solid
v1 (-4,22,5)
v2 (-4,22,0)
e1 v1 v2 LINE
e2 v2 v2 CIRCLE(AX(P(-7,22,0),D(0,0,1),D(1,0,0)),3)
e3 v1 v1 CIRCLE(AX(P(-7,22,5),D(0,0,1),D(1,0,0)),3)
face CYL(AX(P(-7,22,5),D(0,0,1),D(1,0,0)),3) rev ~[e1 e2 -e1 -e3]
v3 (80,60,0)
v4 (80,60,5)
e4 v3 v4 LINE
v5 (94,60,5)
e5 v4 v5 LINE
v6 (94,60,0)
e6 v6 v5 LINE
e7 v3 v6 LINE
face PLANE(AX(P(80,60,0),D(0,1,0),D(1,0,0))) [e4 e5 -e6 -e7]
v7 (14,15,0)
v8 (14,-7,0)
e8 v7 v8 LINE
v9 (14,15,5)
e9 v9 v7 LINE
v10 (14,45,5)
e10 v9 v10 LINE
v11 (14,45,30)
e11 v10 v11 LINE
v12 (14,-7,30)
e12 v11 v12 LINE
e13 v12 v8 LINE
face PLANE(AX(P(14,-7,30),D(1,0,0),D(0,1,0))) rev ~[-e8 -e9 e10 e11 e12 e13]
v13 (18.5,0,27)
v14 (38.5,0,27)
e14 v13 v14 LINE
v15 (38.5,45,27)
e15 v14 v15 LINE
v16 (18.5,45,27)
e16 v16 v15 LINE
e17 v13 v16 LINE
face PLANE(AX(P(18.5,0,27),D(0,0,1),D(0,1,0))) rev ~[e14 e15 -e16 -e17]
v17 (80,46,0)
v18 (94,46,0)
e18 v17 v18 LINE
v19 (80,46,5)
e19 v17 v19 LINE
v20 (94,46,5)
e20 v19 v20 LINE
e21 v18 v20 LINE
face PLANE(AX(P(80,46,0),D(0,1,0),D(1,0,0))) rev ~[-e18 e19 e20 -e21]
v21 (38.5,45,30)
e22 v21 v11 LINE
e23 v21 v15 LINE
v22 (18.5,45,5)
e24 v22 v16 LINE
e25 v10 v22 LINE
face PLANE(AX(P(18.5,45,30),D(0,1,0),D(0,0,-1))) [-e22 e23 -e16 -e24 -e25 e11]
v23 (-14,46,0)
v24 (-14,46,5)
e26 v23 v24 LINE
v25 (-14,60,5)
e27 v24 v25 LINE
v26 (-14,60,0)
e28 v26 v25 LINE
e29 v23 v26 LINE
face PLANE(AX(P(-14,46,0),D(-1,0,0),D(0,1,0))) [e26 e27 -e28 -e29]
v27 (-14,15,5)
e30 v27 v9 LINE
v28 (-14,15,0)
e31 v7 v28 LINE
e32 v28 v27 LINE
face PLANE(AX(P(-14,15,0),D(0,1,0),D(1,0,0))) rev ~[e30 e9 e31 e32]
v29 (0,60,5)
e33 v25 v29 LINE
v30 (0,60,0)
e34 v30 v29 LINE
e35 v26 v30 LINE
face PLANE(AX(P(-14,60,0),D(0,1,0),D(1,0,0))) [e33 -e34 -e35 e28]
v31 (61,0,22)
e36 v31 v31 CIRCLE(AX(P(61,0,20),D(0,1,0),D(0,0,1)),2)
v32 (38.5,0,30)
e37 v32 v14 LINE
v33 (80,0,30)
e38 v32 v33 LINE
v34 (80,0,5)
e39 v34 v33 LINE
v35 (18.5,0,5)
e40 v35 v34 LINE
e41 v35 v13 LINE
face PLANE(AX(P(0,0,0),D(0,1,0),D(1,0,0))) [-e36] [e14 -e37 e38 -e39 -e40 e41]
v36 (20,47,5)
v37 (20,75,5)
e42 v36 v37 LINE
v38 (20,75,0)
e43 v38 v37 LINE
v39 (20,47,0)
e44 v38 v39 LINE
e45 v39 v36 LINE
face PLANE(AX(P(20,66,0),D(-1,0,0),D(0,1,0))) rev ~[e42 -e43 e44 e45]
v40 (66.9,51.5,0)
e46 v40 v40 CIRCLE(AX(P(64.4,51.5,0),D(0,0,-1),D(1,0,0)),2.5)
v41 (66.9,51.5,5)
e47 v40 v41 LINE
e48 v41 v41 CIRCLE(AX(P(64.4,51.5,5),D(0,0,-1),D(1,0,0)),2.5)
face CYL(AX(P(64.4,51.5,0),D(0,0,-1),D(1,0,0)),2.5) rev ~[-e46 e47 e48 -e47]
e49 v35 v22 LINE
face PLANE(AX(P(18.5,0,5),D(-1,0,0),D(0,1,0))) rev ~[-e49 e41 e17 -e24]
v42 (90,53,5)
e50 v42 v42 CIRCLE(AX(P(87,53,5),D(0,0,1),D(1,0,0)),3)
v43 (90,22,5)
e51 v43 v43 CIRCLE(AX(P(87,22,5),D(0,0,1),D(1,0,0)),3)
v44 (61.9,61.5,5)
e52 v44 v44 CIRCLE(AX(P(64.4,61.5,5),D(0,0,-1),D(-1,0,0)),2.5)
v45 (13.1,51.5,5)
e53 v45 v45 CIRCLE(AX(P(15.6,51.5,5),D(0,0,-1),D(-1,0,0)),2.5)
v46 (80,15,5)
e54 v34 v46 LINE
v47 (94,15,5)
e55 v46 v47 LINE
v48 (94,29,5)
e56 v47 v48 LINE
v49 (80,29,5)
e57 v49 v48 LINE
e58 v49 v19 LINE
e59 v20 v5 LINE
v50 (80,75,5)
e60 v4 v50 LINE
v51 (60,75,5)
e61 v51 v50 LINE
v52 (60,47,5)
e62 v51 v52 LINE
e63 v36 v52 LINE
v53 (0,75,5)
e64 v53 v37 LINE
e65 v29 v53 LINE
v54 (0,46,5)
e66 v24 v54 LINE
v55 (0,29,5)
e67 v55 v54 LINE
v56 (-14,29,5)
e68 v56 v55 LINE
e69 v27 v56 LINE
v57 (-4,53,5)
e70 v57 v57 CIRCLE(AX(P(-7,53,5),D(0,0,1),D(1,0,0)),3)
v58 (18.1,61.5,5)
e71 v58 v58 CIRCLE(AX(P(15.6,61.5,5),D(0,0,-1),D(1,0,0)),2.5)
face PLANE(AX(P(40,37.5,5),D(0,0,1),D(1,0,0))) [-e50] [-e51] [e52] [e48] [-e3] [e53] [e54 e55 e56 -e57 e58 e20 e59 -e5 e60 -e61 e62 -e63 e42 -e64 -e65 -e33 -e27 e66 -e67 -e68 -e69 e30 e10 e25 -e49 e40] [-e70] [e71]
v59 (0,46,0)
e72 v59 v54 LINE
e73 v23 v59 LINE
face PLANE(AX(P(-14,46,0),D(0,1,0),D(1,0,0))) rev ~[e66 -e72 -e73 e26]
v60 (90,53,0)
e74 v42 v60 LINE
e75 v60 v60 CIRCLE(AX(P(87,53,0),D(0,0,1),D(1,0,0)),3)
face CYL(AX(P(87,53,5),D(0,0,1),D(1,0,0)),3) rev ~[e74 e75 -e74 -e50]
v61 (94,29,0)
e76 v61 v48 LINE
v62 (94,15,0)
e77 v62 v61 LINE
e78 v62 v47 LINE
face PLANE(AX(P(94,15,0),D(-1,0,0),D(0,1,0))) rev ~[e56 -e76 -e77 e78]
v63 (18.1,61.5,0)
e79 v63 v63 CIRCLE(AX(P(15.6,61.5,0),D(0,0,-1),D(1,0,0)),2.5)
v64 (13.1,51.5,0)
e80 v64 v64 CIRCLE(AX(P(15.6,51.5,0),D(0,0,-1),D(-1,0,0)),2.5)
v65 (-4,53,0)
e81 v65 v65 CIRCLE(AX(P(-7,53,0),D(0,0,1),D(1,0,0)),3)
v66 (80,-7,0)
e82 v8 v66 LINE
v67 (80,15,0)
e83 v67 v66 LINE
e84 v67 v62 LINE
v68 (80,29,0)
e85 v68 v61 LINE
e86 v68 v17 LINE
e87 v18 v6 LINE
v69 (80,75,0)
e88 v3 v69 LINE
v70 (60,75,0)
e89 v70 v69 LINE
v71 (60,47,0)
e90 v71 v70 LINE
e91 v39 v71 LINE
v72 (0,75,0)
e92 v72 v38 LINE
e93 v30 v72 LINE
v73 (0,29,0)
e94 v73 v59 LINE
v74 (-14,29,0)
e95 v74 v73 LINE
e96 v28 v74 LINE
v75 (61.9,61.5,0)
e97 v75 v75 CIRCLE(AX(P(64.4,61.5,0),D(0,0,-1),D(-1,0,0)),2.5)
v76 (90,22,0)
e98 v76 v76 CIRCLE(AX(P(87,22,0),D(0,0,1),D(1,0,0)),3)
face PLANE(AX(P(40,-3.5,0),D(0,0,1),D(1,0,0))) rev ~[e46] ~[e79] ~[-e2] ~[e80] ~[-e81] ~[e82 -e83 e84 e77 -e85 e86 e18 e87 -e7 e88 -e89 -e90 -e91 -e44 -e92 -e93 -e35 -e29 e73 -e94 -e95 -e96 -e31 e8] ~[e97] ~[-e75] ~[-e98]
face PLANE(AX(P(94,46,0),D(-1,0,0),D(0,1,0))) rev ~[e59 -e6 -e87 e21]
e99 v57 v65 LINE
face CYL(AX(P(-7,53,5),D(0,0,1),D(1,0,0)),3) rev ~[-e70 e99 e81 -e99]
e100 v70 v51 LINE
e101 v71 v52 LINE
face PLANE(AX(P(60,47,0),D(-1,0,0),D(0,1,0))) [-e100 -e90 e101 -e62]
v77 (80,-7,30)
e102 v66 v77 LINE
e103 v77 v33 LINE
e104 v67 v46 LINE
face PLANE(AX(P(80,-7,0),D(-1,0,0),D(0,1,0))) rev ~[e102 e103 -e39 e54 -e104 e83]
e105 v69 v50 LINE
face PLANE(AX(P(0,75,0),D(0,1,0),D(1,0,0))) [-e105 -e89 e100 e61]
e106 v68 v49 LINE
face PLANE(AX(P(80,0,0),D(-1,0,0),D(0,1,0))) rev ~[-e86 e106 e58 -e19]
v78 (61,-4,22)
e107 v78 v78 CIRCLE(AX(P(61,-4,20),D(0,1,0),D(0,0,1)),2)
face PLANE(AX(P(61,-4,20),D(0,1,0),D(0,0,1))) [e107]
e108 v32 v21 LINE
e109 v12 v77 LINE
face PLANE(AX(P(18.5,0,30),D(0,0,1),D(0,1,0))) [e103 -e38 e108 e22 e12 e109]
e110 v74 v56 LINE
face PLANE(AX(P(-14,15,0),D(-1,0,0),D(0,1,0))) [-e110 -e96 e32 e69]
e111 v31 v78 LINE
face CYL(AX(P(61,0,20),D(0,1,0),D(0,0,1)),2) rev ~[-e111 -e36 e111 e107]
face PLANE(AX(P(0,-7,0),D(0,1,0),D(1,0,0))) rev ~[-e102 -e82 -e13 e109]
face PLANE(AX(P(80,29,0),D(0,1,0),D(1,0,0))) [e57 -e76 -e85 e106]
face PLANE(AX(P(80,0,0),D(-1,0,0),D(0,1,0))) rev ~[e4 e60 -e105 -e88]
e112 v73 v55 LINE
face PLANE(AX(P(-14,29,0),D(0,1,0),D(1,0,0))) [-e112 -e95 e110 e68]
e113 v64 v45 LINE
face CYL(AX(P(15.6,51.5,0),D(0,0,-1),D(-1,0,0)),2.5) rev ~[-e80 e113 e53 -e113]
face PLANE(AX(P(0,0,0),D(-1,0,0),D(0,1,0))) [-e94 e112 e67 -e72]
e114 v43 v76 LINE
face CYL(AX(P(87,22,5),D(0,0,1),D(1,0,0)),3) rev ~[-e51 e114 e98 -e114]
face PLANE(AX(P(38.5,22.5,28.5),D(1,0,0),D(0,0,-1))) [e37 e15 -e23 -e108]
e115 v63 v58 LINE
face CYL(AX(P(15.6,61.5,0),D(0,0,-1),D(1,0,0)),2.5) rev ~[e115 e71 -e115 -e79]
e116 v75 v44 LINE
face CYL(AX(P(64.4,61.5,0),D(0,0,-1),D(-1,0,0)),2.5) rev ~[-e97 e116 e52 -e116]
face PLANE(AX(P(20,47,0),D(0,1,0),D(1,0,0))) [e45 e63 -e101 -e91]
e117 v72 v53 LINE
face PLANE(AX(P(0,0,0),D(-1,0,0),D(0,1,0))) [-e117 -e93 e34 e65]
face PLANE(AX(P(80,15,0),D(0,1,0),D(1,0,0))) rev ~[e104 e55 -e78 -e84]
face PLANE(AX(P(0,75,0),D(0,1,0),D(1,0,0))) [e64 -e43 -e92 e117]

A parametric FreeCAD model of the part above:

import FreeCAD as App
import Part
import Sketcher

doc = App.newDocument("Part")
body = doc.addObject("PartDesign::Body", "Body")

sketch1 = body.newObject("Sketcher::SketchObject", "Sketch")
sketch1.AttachmentSupport = (doc.getObject("XY_Plane"), [""])
sketch1.MapMode = "FlatFace"
sketch1.addGeometry(Part.LineSegment(App.Vector(0, 15, 0), App.Vector(0, 0, 0)), False)
sketch1.addGeometry(Part.LineSegment(App.Vector(0, 0, 0), App.Vector(80, 0, 0)), False)
sketch1.addGeometry(Part.LineSegment(App.Vector(80, 0, 0), App.Vector(80, 15, 0)), False)
sketch1.addGeometry(Part.LineSegment(App.Vector(80, 15, 0), App.Vector(94, 15, 0)), False)
sketch1.addGeometry(Part.LineSegment(App.Vector(94, 15, 0), App.Vector(94, 29, 0)), False)
sketch1.addGeometry(Part.LineSegment(App.Vector(94, 29, 0), App.Vector(80, 29, 0)), False)
sketch1.addGeometry(Part.LineSegment(App.Vector(80, 29, 0), App.Vector(80, 46, 0)), False)
sketch1.addGeometry(Part.LineSegment(App.Vector(80, 46, 0), App.Vector(94, 46, 0)), False)
sketch1.addGeometry(Part.LineSegment(App.Vector(94, 46, 0), App.Vector(94, 60, 0)), False)
sketch1.addGeometry(Part.LineSegment(App.Vector(94, 60, 0), App.Vector(80, 60, 0)), False)
sketch1.addGeometry(Part.LineSegment(App.Vector(80, 60, 0), App.Vector(80, 75, 0)), False)
sketch1.addGeometry(Part.LineSegment(App.Vector(80, 75, 0), App.Vector(0, 75, 0)), False)
sketch1.addGeometry(Part.LineSegment(App.Vector(0, 75, 0), App.Vector(0, 60, 0)), False)
sketch1.addGeometry(Part.LineSegment(App.Vector(0, 60, 0), App.Vector(-14, 60, 0)), False)
sketch1.addGeometry(Part.LineSegment(App.Vector(-14, 60, 0), App.Vector(-14, 46, 0)), False)
sketch1.addGeometry(Part.LineSegment(App.Vector(-14, 46, 0), App.Vector(0, 46, 0)), False)
sketch1.addGeometry(Part.LineSegment(App.Vector(0, 46, 0), App.Vector(0, 29, 0)), False)
sketch1.addGeometry(Part.LineSegment(App.Vector(0, 29, 0), App.Vector(-14, 29, 0)), False)
sketch1.addGeometry(Part.LineSegment(App.Vector(-14, 29, 0), App.Vector(-14, 15, 0)), False)
sketch1.addGeometry(Part.LineSegment(App.Vector(-14, 15, 0), App.Vector(0, 15, 0)), False)
sketch1.addGeometry(Part.LineSegment(App.Vector(60, 47, 0), App.Vector(20, 47, 0)), False)
sketch1.addGeometry(Part.LineSegment(App.Vector(20, 47, 0), App.Vector(20, 66, 0)), False)
sketch1.addGeometry(Part.LineSegment(App.Vector(20, 66, 0), App.Vector(60, 66, 0)), False)
sketch1.addGeometry(Part.LineSegment(App.Vector(60, 66, 0), App.Vector(60, 47, 0)), False)
sketch1.addConstraint(Sketcher.Constraint("Coincident", 0, 2, 1, 1))
sketch1.addConstraint(Sketcher.Constraint("Coincident", 1, 2, 2, 1))
sketch1.addConstraint(Sketcher.Constraint("Coincident", 2, 2, 3, 1))
sketch1.addConstraint(Sketcher.Constraint("Coincident", 3, 2, 4, 1))
sketch1.addConstraint(Sketcher.Constraint("Coincident", 4, 2, 5, 1))
sketch1.addConstraint(Sketcher.Constraint("Coincident", 5, 2, 6, 1))
sketch1.addConstraint(Sketcher.Constraint("Coincident", 6, 2, 7, 1))
sketch1.addConstraint(Sketcher.Constraint("Coincident", 7, 2, 8, 1))
sketch1.addConstraint(Sketcher.Constraint("Coincident", 8, 2, 9, 1))
sketch1.addConstraint(Sketcher.Constraint("Coincident", 9, 2, 10, 1))
sketch1.addConstraint(Sketcher.Constraint("Coincident", 10, 2, 11, 1))
sketch1.addConstraint(Sketcher.Constraint("Coincident", 11, 2, 12, 1))
sketch1.addConstraint(Sketcher.Constraint("Coincident", 12, 2, 13, 1))
sketch1.addConstraint(Sketcher.Constraint("Coincident", 13, 2, 14, 1))
sketch1.addConstraint(Sketcher.Constraint("Coincident", 14, 2, 15, 1))
sketch1.addConstraint(Sketcher.Constraint("Coincident", 15, 2, 16, 1))
sketch1.addConstraint(Sketcher.Constraint("Coincident", 16, 2, 17, 1))
sketch1.addConstraint(Sketcher.Constraint("Coincident", 17, 2, 18, 1))
sketch1.addConstraint(Sketcher.Constraint("Coincident", 18, 2, 19, 1))
sketch1.addConstraint(Sketcher.Constraint("Coincident", 19, 2, 0, 1))
sketch1.addConstraint(Sketcher.Constraint("Coincident", 20, 2, 21, 1))
sketch1.addConstraint(Sketcher.Constraint("Coincident", 21, 2, 22, 1))
sketch1.addConstraint(Sketcher.Constraint("Coincident", 22, 2, 23, 1))
sketch1.addConstraint(Sketcher.Constraint("Coincident", 23, 2, 20, 1))
sketch1.addConstraint(Sketcher.Constraint("Vertical", 0))
sketch1.addConstraint(Sketcher.Constraint("Horizontal", 1))
sketch1.addConstraint(Sketcher.Constraint("Vertical", 2))
sketch1.addConstraint(Sketcher.Constraint("Horizontal", 3))
sketch1.addConstraint(Sketcher.Constraint("Vertical", 4))
sketch1.addConstraint(Sketcher.Constraint("Horizontal", 5))
sketch1.addConstraint(Sketcher.Constraint("Vertical", 6))
sketch1.addConstraint(Sketcher.Constraint("Horizontal", 7))
sketch1.addConstraint(Sketcher.Constraint("Vertical", 8))
sketch1.addConstraint(Sketcher.Constraint("Horizontal", 9))
sketch1.addConstraint(Sketcher.Constraint("Vertical", 10))
sketch1.addConstraint(Sketcher.Constraint("Horizontal", 11))
sketch1.addConstraint(Sketcher.Constraint("Vertical", 12))
sketch1.addConstraint(Sketcher.Constraint("Horizontal", 13))
sketch1.addConstraint(Sketcher.Constraint("Vertical", 14))
sketch1.addConstraint(Sketcher.Constraint("Horizontal", 15))
sketch1.addConstraint(Sketcher.Constraint("Vertical", 16))
sketch1.addConstraint(Sketcher.Constraint("Horizontal", 17))
sketch1.addConstraint(Sketcher.Constraint("Vertical", 18))
sketch1.addConstraint(Sketcher.Constraint("Horizontal", 19))
sketch1.addConstraint(Sketcher.Constraint("Horizontal", 20))
sketch1.addConstraint(Sketcher.Constraint("Vertical", 21))
sketch1.addConstraint(Sketcher.Constraint("Horizontal", 22))
sketch1.addConstraint(Sketcher.Constraint("Vertical", 23))
sketch1.addConstraint(Sketcher.Constraint("Coincident", 0, 2, -1, 1))
sketch1.addConstraint(Sketcher.Constraint("PointOnObject", 11, 2, -2))
sketch1.addConstraint(Sketcher.Constraint("PointOnObject", 15, 2, -2))
sketch1.addConstraint(Sketcher.Constraint("Horizontal", 9, 2, 12, 2))
sketch1.addConstraint(Sketcher.Constraint("Horizontal", 7, 2, 14, 2))
sketch1.addConstraint(Sketcher.Constraint("Horizontal", 5, 2, 16, 2))
sketch1.addConstraint(Sketcher.Constraint("Horizontal", 3, 2, 18, 2))
sketch1.addConstraint(Sketcher.Constraint("Vertical", 2, 2, 5, 2))
sketch1.addConstraint(Sketcher.Constraint("Vertical", 4, 2, 7, 2))
sketch1.addConstraint(Sketcher.Constraint("Vertical", 6, 2, 9, 2))
sketch1.addConstraint(Sketcher.Constraint("Vertical", 14, 2, 17, 2))
sketch1.addConstraint(Sketcher.Constraint("Equal", 9, 13))
sketch1.addConstraint(Sketcher.Constraint("Equal", 19, 4))
sketch1.addConstraint(Sketcher.Constraint("Equal", 4, 8))
sketch1.addConstraint(Sketcher.Constraint("Equal", 2, 10))
sketch1.addConstraint(Sketcher.Constraint("DistanceX", 1, 1, 1, 2, 80.0))
sketch1.addConstraint(Sketcher.Constraint("DistanceX", 3, 1, 3, 2, 14.0))
sketch1.addConstraint(Sketcher.Constraint("DistanceX", 20, 2, 20, 1, 40.0))
sketch1.addConstraint(Sketcher.Constraint("DistanceY", 0, 2, 0, 1, 15.0))
sketch1.addConstraint(Sketcher.Constraint("DistanceY", 6, 1, 6, 2, 17.0))
sketch1.addConstraint(Sketcher.Constraint("DistanceY", 21, 1, 21, 2, 19.0))
sketch1.addConstraint(Sketcher.Constraint("DistanceX", -1, 1, 20, 2, 20.0))
sketch1.addConstraint(Sketcher.Constraint("DistanceY", -1, 1, 20, 2, 47.0))
pad1 = body.newObject("PartDesign::Pad", "Pad")
pad1.Profile = sketch1
pad1.Length = 5

sketch2 = body.newObject("Sketcher::SketchObject", "Sketch001")
sketch2.AttachmentSupport = (doc.getObject("XY_Plane"), [""])
sketch2.MapMode = "FlatFace"
sketch2.AttachmentOffset = App.Placement(App.Vector(0, 0, 5), App.Rotation())
sketch2.addGeometry(Part.Circle(App.Vector(-7, 53, 0), App.Vector(0, 0, 1), 3), False)
sketch2.addConstraint(Sketcher.Constraint("Diameter", 0, 6.0))
sketch2.addConstraint(Sketcher.Constraint("DistanceX", 0, 3, -1, 1, 7.0))
sketch2.addConstraint(Sketcher.Constraint("DistanceY", -1, 1, 0, 3, 53.0))
pocket1 = body.newObject("PartDesign::Pocket", "Pocket")
pocket1.Profile = sketch2
pocket1.Type = "UpToFirst"

sketch3 = body.newObject("Sketcher::SketchObject", "Sketch002")
sketch3.AttachmentSupport = (doc.getObject("XY_Plane"), [""])
sketch3.MapMode = "FlatFace"
sketch3.AttachmentOffset = App.Placement(App.Vector(0, 0, 5), App.Rotation())
sketch3.addGeometry(Part.Circle(App.Vector(-7, 22, 0), App.Vector(0, 0, 1), 3), False)
sketch3.addConstraint(Sketcher.Constraint("Diameter", 0, 6.0))
sketch3.addConstraint(Sketcher.Constraint("DistanceX", 0, 3, -1, 1, 7.0))
sketch3.addConstraint(Sketcher.Constraint("DistanceY", -1, 1, 0, 3, 22.0))
pocket2 = body.newObject("PartDesign::Pocket", "Pocket001")
pocket2.Profile = sketch3
pocket2.Type = "UpToFirst"

sketch4 = body.newObject("Sketcher::SketchObject", "Sketch003")
sketch4.AttachmentSupport = (doc.getObject("XY_Plane"), [""])
sketch4.MapMode = "FlatFace"
sketch4.AttachmentOffset = App.Placement(App.Vector(0, 0, 5), App.Rotation())
sketch4.addGeometry(Part.Circle(App.Vector(87, 22, 0), App.Vector(0, 0, 1), 3), False)
sketch4.addConstraint(Sketcher.Constraint("Diameter", 0, 6.0))
sketch4.addConstraint(Sketcher.Constraint("DistanceX", -1, 1, 0, 3, 87.0))
sketch4.addConstraint(Sketcher.Constraint("DistanceY", -1, 1, 0, 3, 22.0))
pocket3 = body.newObject("PartDesign::Pocket", "Pocket002")
pocket3.Profile = sketch4
pocket3.Type = "UpToFirst"

sketch5 = body.newObject("Sketcher::SketchObject", "Sketch004")
sketch5.AttachmentSupport = (doc.getObject("XY_Plane"), [""])
sketch5.MapMode = "FlatFace"
sketch5.AttachmentOffset = App.Placement(App.Vector(0, 0, 5), App.Rotation())
sketch5.addGeometry(Part.Circle(App.Vector(87, 53, 0), App.Vector(0, 0, 1), 3), False)
sketch5.addConstraint(Sketcher.Constraint("Diameter", 0, 6.0))
sketch5.addConstraint(Sketcher.Constraint("DistanceX", -1, 1, 0, 3, 87.0))
sketch5.addConstraint(Sketcher.Constraint("DistanceY", -1, 1, 0, 3, 53.0))
pocket4 = body.newObject("PartDesign::Pocket", "Pocket003")
pocket4.Profile = sketch5
pocket4.Type = "UpToFirst"

sketch6 = body.newObject("Sketcher::SketchObject", "Sketch005")
sketch6.AttachmentSupport = (doc.getObject("XY_Plane"), [""])
sketch6.MapMode = "FlatFace"
sketch6.addGeometry(Part.LineSegment(App.Vector(0, 0, 0), App.Vector(0, -7, 0)), False)
sketch6.addGeometry(Part.LineSegment(App.Vector(0, -7, 0), App.Vector(80, -7, 0)), False)
sketch6.addGeometry(Part.LineSegment(App.Vector(80, -7, 0), App.Vector(80, 0, 0)), False)
sketch6.addGeometry(Part.LineSegment(App.Vector(80, 0, 0), App.Vector(0, 0, 0)), False)
sketch6.addConstraint(Sketcher.Constraint("Coincident", 0, 2, 1, 1))
sketch6.addConstraint(Sketcher.Constraint("Coincident", 1, 2, 2, 1))
sketch6.addConstraint(Sketcher.Constraint("Coincident", 2, 2, 3, 1))
sketch6.addConstraint(Sketcher.Constraint("Coincident", 3, 2, 0, 1))
sketch6.addConstraint(Sketcher.Constraint("Vertical", 0))
sketch6.addConstraint(Sketcher.Constraint("Horizontal", 1))
sketch6.addConstraint(Sketcher.Constraint("Vertical", 2))
sketch6.addConstraint(Sketcher.Constraint("Horizontal", 3))
sketch6.addConstraint(Sketcher.Constraint("Coincident", 3, 2, -1, 1))
sketch6.addConstraint(Sketcher.Constraint("DistanceX", 1, 1, 1, 2, 80.0))
sketch6.addConstraint(Sketcher.Constraint("DistanceY", 0, 2, 0, 1, 7.0))
pad2 = body.newObject("PartDesign::Pad", "Pad001")
pad2.Profile = sketch6
pad2.Length = 30

sketch7 = body.newObject("Sketcher::SketchObject", "Sketch006")
sketch7.AttachmentSupport = (doc.getObject("XY_Plane"), [""])
sketch7.MapMode = "FlatFace"
sketch7.addGeometry(Part.Circle(App.Vector(64.4, 61.5, 0), App.Vector(0, 0, 1), 2.5), False)
sketch7.addConstraint(Sketcher.Constraint("Diameter", 0, 5.0))
sketch7.addConstraint(Sketcher.Constraint("DistanceX", -1, 1, 0, 3, 64.4))
sketch7.addConstraint(Sketcher.Constraint("DistanceY", -1, 1, 0, 3, 61.5))
pocket5 = body.newObject("PartDesign::Pocket", "Pocket004")
pocket5.Profile = sketch7
pocket5.Type = "UpToFirst"
pocket5.Reversed = True

sketch8 = body.newObject("Sketcher::SketchObject", "Sketch007")
sketch8.AttachmentSupport = (doc.getObject("XY_Plane"), [""])
sketch8.MapMode = "FlatFace"
sketch8.addGeometry(Part.Circle(App.Vector(15.6, 61.5, 0), App.Vector(0, 0, 1), 2.5), False)
sketch8.addConstraint(Sketcher.Constraint("Diameter", 0, 5.0))
sketch8.addConstraint(Sketcher.Constraint("DistanceX", -1, 1, 0, 3, 15.6))
sketch8.addConstraint(Sketcher.Constraint("DistanceY", -1, 1, 0, 3, 61.5))
pocket6 = body.newObject("PartDesign::Pocket", "Pocket005")
pocket6.Profile = sketch8
pocket6.Type = "UpToFirst"
pocket6.Reversed = True

sketch9 = body.newObject("Sketcher::SketchObject", "Sketch008")
sketch9.AttachmentSupport = (doc.getObject("XY_Plane"), [""])
sketch9.MapMode = "FlatFace"
sketch9.addGeometry(Part.Circle(App.Vector(15.6, 51.5, 0), App.Vector(0, 0, 1), 2.5), False)
sketch9.addConstraint(Sketcher.Constraint("Diameter", 0, 5.0))
sketch9.addConstraint(Sketcher.Constraint("DistanceX", -1, 1, 0, 3, 15.6))
sketch9.addConstraint(Sketcher.Constraint("DistanceY", -1, 1, 0, 3, 51.5))
pocket7 = body.newObject("PartDesign::Pocket", "Pocket006")
pocket7.Profile = sketch9
pocket7.Type = "UpToFirst"
pocket7.Reversed = True

sketch10 = body.newObject("Sketcher::SketchObject", "Sketch009")
sketch10.AttachmentSupport = (doc.getObject("XY_Plane"), [""])
sketch10.MapMode = "FlatFace"
sketch10.addGeometry(Part.Circle(App.Vector(64.4, 51.5, 0), App.Vector(0, 0, 1), 2.5), False)
sketch10.addConstraint(Sketcher.Constraint("Diameter", 0, 5.0))
sketch10.addConstraint(Sketcher.Constraint("DistanceX", -1, 1, 0, 3, 64.4))
sketch10.addConstraint(Sketcher.Constraint("DistanceY", -1, 1, 0, 3, 51.5))
pocket8 = body.newObject("PartDesign::Pocket", "Pocket007")
pocket8.Profile = sketch10
pocket8.Type = "UpToFirst"
pocket8.Reversed = True

sketch11 = body.newObject("Sketcher::SketchObject", "Sketch010")
sketch11.AttachmentSupport = (doc.getObject("XY_Plane"), [""])
sketch11.MapMode = "FlatFace"
sketch11.addGeometry(Part.LineSegment(App.Vector(60, 75, 0), App.Vector(60, 66, 0)), False)
sketch11.addGeometry(Part.LineSegment(App.Vector(60, 66, 0), App.Vector(20, 66, 0)), False)
sketch11.addGeometry(Part.LineSegment(App.Vector(20, 66, 0), App.Vector(20, 75, 0)), False)
sketch11.addGeometry(Part.LineSegment(App.Vector(20, 75, 0), App.Vector(60, 75, 0)), False)
sketch11.addConstraint(Sketcher.Constraint("Coincident", 0, 2, 1, 1))
sketch11.addConstraint(Sketcher.Constraint("Coincident", 1, 2, 2, 1))
sketch11.addConstraint(Sketcher.Constraint("Coincident", 2, 2, 3, 1))
sketch11.addConstraint(Sketcher.Constraint("Coincident", 3, 2, 0, 1))
sketch11.addConstraint(Sketcher.Constraint("Vertical", 0))
sketch11.addConstraint(Sketcher.Constraint("Horizontal", 1))
sketch11.addConstraint(Sketcher.Constraint("Vertical", 2))
sketch11.addConstraint(Sketcher.Constraint("Horizontal", 3))
sketch11.addConstraint(Sketcher.Constraint("DistanceX", 1, 2, 1, 1, 40.0))
sketch11.addConstraint(Sketcher.Constraint("DistanceY", 0, 2, 0, 1, 9.0))
sketch11.addConstraint(Sketcher.Constraint("DistanceX", -1, 1, 0, 2, 60.0))
sketch11.addConstraint(Sketcher.Constraint("DistanceY", -1, 1, 0, 2, 66.0))
pocket9 = body.newObject("PartDesign::Pocket", "Pocket008")
pocket9.Profile = sketch11
pocket9.Type = "UpToFirst"
pocket9.Reversed = True

sketch12 = body.newObject("Sketcher::SketchObject", "Sketch011")
sketch12.AttachmentSupport = (doc.getObject("XZ_Plane"), [""])
sketch12.MapMode = "FlatFace"
sketch12.addGeometry(Part.Circle(App.Vector(61, 20, 0), App.Vector(0, 0, 1), 2), False)
sketch12.addConstraint(Sketcher.Constraint("Diameter", 0, 4.0))
sketch12.addConstraint(Sketcher.Constraint("DistanceX", -1, 1, 0, 3, 61.0))
sketch12.addConstraint(Sketcher.Constraint("DistanceY", -1, 1, 0, 3, 20.0))
pocket10 = body.newObject("PartDesign::Pocket", "Pocket009")
pocket10.Profile = sketch12
pocket10.Length = 4
pocket10.Reversed = True

sketch13 = body.newObject("Sketcher::SketchObject", "Sketch012")
sketch13.AttachmentSupport = (doc.getObject("XY_Plane"), [""])
sketch13.MapMode = "FlatFace"
sketch13.AttachmentOffset = App.Placement(App.Vector(0, 0, 5), App.Rotation())
sketch13.addGeometry(Part.LineSegment(App.Vector(14, 45, 0), App.Vector(14, 0, 0)), False)
sketch13.addGeometry(Part.LineSegment(App.Vector(14, 0, 0), App.Vector(18.5, 0, 0)), False)
sketch13.addGeometry(Part.LineSegment(App.Vector(18.5, 0, 0), App.Vector(18.5, 45, 0)), False)
sketch13.addGeometry(Part.LineSegment(App.Vector(18.5, 45, 0), App.Vector(14, 45, 0)), False)
sketch13.addConstraint(Sketcher.Constraint("Coincident", 0, 2, 1, 1))
sketch13.addConstraint(Sketcher.Constraint("Coincident", 1, 2, 2, 1))
sketch13.addConstraint(Sketcher.Constraint("Coincident", 2, 2, 3, 1))
sketch13.addConstraint(Sketcher.Constraint("Coincident", 3, 2, 0, 1))
sketch13.addConstraint(Sketcher.Constraint("Vertical", 0))
sketch13.addConstraint(Sketcher.Constraint("Horizontal", 1))
sketch13.addConstraint(Sketcher.Constraint("Vertical", 2))
sketch13.addConstraint(Sketcher.Constraint("Horizontal", 3))
sketch13.addConstraint(Sketcher.Constraint("PointOnObject", 0, 2, -1))
sketch13.addConstraint(Sketcher.Constraint("DistanceY", 0, 2, 0, 1, 45.0))
sketch13.addConstraint(Sketcher.Constraint("DistanceX", 1, 1, 1, 2, 4.5))
sketch13.addConstraint(Sketcher.Constraint("DistanceX", -1, 1, 0, 2, 14.0))
pad3 = body.newObject("PartDesign::Pad", "Pad002")
pad3.Profile = sketch13
pad3.Length = 25

sketch14 = body.newObject("Sketcher::SketchObject", "Sketch013")
sketch14.AttachmentSupport = (doc.getObject("YZ_Plane"), [""])
sketch14.MapMode = "FlatFace"
sketch14.AttachmentOffset = App.Placement(App.Vector(0, 0, 18.5), App.Rotation())
sketch14.addGeometry(Part.LineSegment(App.Vector(45, 30, 0), App.Vector(0, 30, 0)), False)
sketch14.addGeometry(Part.LineSegment(App.Vector(0, 30, 0), App.Vector(0, 27, 0)), False)
sketch14.addGeometry(Part.LineSegment(App.Vector(0, 27, 0), App.Vector(45, 27, 0)), False)
sketch14.addGeometry(Part.LineSegment(App.Vector(45, 27, 0), App.Vector(45, 30, 0)), False)
sketch14.addConstraint(Sketcher.Constraint("Coincident", 0, 2, 1, 1))
sketch14.addConstraint(Sketcher.Constraint("Coincident", 1, 2, 2, 1))
sketch14.addConstraint(Sketcher.Constraint("Coincident", 2, 2, 3, 1))
sketch14.addConstraint(Sketcher.Constraint("Coincident", 3, 2, 0, 1))
sketch14.addConstraint(Sketcher.Constraint("Horizontal", 0))
sketch14.addConstraint(Sketcher.Constraint("Vertical", 1))
sketch14.addConstraint(Sketcher.Constraint("Horizontal", 2))
sketch14.addConstraint(Sketcher.Constraint("Vertical", 3))
sketch14.addConstraint(Sketcher.Constraint("PointOnObject", 0, 2, -2))
sketch14.addConstraint(Sketcher.Constraint("DistanceX", 0, 2, 0, 1, 45.0))
sketch14.addConstraint(Sketcher.Constraint("DistanceY", 1, 2, 1, 1, 3.0))
sketch14.addConstraint(Sketcher.Constraint("DistanceY", -1, 1, 0, 2, 30.0))
pad4 = body.newObject("PartDesign::Pad", "Pad003")
pad4.Profile = sketch14
pad4.Length = 20

sketch15 = body.newObject("Sketcher::SketchObject", "Sketch014")
sketch15.AttachmentSupport = (doc.getObject("XY_Plane"), [""])
sketch15.MapMode = "FlatFace"
sketch15.AttachmentOffset = App.Placement(App.Vector(0, 0, 5), App.Rotation())
sketch15.addGeometry(Part.LineSegment(App.Vector(0, 15, 0), App.Vector(0, 0, 0)), False)
sketch15.addGeometry(Part.LineSegment(App.Vector(0, 0, 0), App.Vector(14, 0, 0)), False)
sketch15.addGeometry(Part.LineSegment(App.Vector(14, 0, 0), App.Vector(14, 15, 0)), False)
sketch15.addGeometry(Part.LineSegment(App.Vector(14, 15, 0), App.Vector(0, 15, 0)), False)
sketch15.addConstraint(Sketcher.Constraint("Coincident", 0, 2, 1, 1))
sketch15.addConstraint(Sketcher.Constraint("Coincident", 1, 2, 2, 1))
sketch15.addConstraint(Sketcher.Constraint("Coincident", 2, 2, 3, 1))
sketch15.addConstraint(Sketcher.Constraint("Coincident", 3, 2, 0, 1))
sketch15.addConstraint(Sketcher.Constraint("Vertical", 0))
sketch15.addConstraint(Sketcher.Constraint("Horizontal", 1))
sketch15.addConstraint(Sketcher.Constraint("Vertical", 2))
sketch15.addConstraint(Sketcher.Constraint("Horizontal", 3))
sketch15.addConstraint(Sketcher.Constraint("Coincident", 0, 2, -1, 1))
sketch15.addConstraint(Sketcher.Constraint("DistanceX", 1, 1, 1, 2, 14.0))
sketch15.addConstraint(Sketcher.Constraint("DistanceY", 0, 2, 0, 1, 15.0))
pocket11 = body.newObject("PartDesign::Pocket", "Pocket010")
pocket11.Profile = sketch15
pocket11.Type = "UpToFirst"

sketch16 = body.newObject("Sketcher::SketchObject", "Sketch015")
sketch16.AttachmentSupport = (doc.getObject("XY_Plane"), [""])
sketch16.MapMode = "FlatFace"
sketch16.AttachmentOffset = App.Placement(App.Vector(0, 0, 30), App.Rotation())
sketch16.addGeometry(Part.LineSegment(App.Vector(0, 0, 0), App.Vector(0, -7, 0)), False)
sketch16.addGeometry(Part.LineSegment(App.Vector(0, -7, 0), App.Vector(14, -7, 0)), False)
sketch16.addGeometry(Part.LineSegment(App.Vector(14, -7, 0), App.Vector(14, 0, 0)), False)
sketch16.addGeometry(Part.LineSegment(App.Vector(14, 0, 0), App.Vector(0, 0, 0)), False)
sketch16.addConstraint(Sketcher.Constraint("Coincident", 0, 2, 1, 1))
sketch16.addConstraint(Sketcher.Constraint("Coincident", 1, 2, 2, 1))
sketch16.addConstraint(Sketcher.Constraint("Coincident", 2, 2, 3, 1))
sketch16.addConstraint(Sketcher.Constraint("Coincident", 3, 2, 0, 1))
sketch16.addConstraint(Sketcher.Constraint("Vertical", 0))
sketch16.addConstraint(Sketcher.Constraint("Horizontal", 1))
sketch16.addConstraint(Sketcher.Constraint("Vertical", 2))
sketch16.addConstraint(Sketcher.Constraint("Horizontal", 3))
sketch16.addConstraint(Sketcher.Constraint("Coincident", 3, 2, -1, 1))
sketch16.addConstraint(Sketcher.Constraint("DistanceX", 1, 1, 1, 2, 14.0))
sketch16.addConstraint(Sketcher.Constraint("DistanceY", 0, 2, 0, 1, 7.0))
pocket12 = body.newObject("PartDesign::Pocket", "Pocket011")
pocket12.Profile = sketch16
pocket12.Type = "UpToFirst"

doc.recompute()
